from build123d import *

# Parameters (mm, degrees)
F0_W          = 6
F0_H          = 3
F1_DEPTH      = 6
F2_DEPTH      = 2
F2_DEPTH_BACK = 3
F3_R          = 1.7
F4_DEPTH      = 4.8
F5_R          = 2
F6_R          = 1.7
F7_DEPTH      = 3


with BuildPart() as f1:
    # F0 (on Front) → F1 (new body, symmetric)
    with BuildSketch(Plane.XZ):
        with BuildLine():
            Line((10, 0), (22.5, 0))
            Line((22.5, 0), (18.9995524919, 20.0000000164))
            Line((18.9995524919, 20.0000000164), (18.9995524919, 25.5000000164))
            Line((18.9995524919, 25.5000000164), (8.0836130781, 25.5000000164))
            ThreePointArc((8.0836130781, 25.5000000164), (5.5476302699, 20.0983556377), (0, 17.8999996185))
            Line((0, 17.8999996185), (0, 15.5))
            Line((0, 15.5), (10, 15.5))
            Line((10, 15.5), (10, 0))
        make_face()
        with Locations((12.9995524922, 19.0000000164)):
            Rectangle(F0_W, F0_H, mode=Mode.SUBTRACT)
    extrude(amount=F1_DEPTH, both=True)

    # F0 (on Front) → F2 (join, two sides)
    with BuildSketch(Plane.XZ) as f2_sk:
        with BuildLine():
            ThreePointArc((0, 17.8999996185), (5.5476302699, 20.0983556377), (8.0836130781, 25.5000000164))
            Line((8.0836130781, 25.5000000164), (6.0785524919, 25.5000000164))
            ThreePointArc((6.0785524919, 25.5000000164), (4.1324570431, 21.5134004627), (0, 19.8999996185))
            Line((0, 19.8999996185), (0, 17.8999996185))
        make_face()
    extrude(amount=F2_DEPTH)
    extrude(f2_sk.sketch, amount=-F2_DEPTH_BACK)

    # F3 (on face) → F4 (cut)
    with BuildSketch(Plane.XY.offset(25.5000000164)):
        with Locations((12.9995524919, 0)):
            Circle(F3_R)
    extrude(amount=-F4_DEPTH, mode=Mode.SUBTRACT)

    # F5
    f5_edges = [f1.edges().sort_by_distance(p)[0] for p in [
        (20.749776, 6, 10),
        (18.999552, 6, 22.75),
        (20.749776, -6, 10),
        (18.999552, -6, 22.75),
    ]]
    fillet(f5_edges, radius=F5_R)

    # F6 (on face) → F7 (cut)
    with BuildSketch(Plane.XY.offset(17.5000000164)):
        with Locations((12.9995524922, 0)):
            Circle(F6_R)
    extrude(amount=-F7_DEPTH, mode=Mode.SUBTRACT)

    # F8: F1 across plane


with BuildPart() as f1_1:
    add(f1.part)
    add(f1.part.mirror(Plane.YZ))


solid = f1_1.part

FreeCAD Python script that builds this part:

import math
import FreeCAD as App
import Part
import Sketcher
from FreeCAD import Vector
Q = App.Units.Quantity


def edges_at(feature, points):
    """Names of the edges that pass closest to the given points."""
    edges = feature.Shape.Edges
    near = lambda p: min(range(len(edges)), key=lambda i: edges[i].distToShape(Part.Vertex(*p))[0])
    return sorted({f"Edge{near(p) + 1}" for p in points})

doc = App.newDocument("Part")
body = doc.addObject("PartDesign::Body", "Body")

# Sketch on XZ plane
sketch1 = body.newObject("Sketcher::SketchObject", "Sketch")
sketch1.AttachmentSupport = (doc.getObject("XZ_Plane"), [""])
sketch1.MapMode = "FlatFace"
sketch1.addGeometry([
    Part.LineSegment(Vector(10, 0, 0), Vector(22.5, 0, 0)),  # 0
    Part.LineSegment(Vector(22.5, 0, 0), Vector(18.999552, 20, 0)),  # 1
    Part.LineSegment(Vector(18.999552, 20, 0), Vector(18.999552, 25.5, 0)),  # 2
    Part.LineSegment(Vector(18.999552, 25.5, 0), Vector(8.083613, 25.5, 0)),  # 3
    Part.ArcOfCircle(Part.Circle(Vector(0, 25.999, 0), Vector(0, 0, 1), 8.099), math.radians(-90), math.radians(-3.532373)),  # 4
    Part.LineSegment(Vector(0, 17.9, 0), Vector(0, 15.5, 0)),  # 5
    Part.LineSegment(Vector(0, 15.5, 0), Vector(10, 15.5, 0)),  # 6
    Part.LineSegment(Vector(10, 15.5, 0), Vector(10, 0, 0)),  # 7
    Part.LineSegment(Vector(15.999552, 17.5, 0), Vector(9.999552, 17.5, 0)),  # 8
    Part.LineSegment(Vector(9.999552, 17.5, 0), Vector(9.999552, 20.5, 0)),  # 9
    Part.LineSegment(Vector(9.999552, 20.5, 0), Vector(15.999552, 20.5, 0)),  # 10
    Part.LineSegment(Vector(15.999552, 20.5, 0), Vector(15.999552, 17.5, 0)),  # 11
], False)
sketch1.addConstraint([
    Sketcher.Constraint("Coincident", 0, 2, 1, 1),
    Sketcher.Constraint("Coincident", 1, 2, 2, 1),
    Sketcher.Constraint("Coincident", 2, 2, 3, 1),
    Sketcher.Constraint("Coincident", 3, 2, 4, 2),
    Sketcher.Constraint("Coincident", 4, 1, 5, 1),
    Sketcher.Constraint("Coincident", 5, 2, 6, 1),
    Sketcher.Constraint("Coincident", 6, 2, 7, 1),
    Sketcher.Constraint("Coincident", 7, 2, 0, 1),
    Sketcher.Constraint("Coincident", 8, 2, 9, 1),
    Sketcher.Constraint("Coincident", 9, 2, 10, 1),
    Sketcher.Constraint("Coincident", 10, 2, 11, 1),
    Sketcher.Constraint("Coincident", 11, 2, 8, 1),
    Sketcher.Constraint("Horizontal", 0),
    Sketcher.Constraint("Vertical", 2),
    Sketcher.Constraint("Horizontal", 3),
    Sketcher.Constraint("Vertical", 5),
    Sketcher.Constraint("Horizontal", 6),
    Sketcher.Constraint("Vertical", 7),
    Sketcher.Constraint("Horizontal", 8),
    Sketcher.Constraint("Vertical", 9),
    Sketcher.Constraint("Horizontal", 10),
    Sketcher.Constraint("Vertical", 11),
    Sketcher.Constraint("PointOnObject", 4, 3, -2),
    Sketcher.Constraint("PointOnObject", 0, 2, -1),
    Sketcher.Constraint("PointOnObject", 4, 1, -2),
    Sketcher.Constraint("DistanceX", 6, 1, 6, 2, Q("10 mm")),
    Sketcher.Constraint("DistanceX", 8, 2, 8, 1, Q("6 mm")),
    Sketcher.Constraint("DistanceY", 9, 1, 9, 2, Q("3 mm")),
    Sketcher.Constraint("DistanceX", 0, 1, 0, 2, Q("12.5 mm")),
    Sketcher.Constraint("DistanceY", 2, 1, 2, 2, Q("5.5 mm")),
    Sketcher.Constraint("DistanceY", 5, 2, 5, 1, Q("2.4 mm")),
    Sketcher.Constraint("DistanceY", 7, 2, 7, 1, Q("15.5 mm")),
    Sketcher.Constraint("DistanceY", -1, 1, 1, 2, Q("20 mm")),
    Sketcher.Constraint("Radius", 4, Q("8.099 mm")),
    Sketcher.Constraint("DistanceY", 6, 2, 8, 2, Q("2 mm")),
    Sketcher.Constraint("DistanceX", 8, 2, 1, 2, Q("9 mm")),
    Sketcher.Constraint("DistanceX", 3, 2, 3, 1, Q("10.915939 mm")),
])
pad1 = body.newObject("PartDesign::Pad", "Pad")
pad1.Profile = sketch1
pad1.Length = 12
pad1.Midplane = True

# Sketch on XZ plane
sketch2 = body.newObject("Sketcher::SketchObject", "Sketch001")
sketch2.AttachmentSupport = (doc.getObject("XZ_Plane"), [""])
sketch2.MapMode = "FlatFace"
sketch2.addGeometry([
    Part.ArcOfCircle(Part.Circle(Vector(0, 25.999, 0), Vector(0, 0, 1), 8.099), math.radians(-90), math.radians(-3.532373)),
    Part.LineSegment(Vector(8.083613, 25.5, 0), Vector(6.078552, 25.5, 0)),
    Part.ArcOfCircle(Part.Circle(Vector(0, 25.999, 0), Vector(0, 0, 1), 6.099), math.radians(-90), math.radians(-4.692993)),
    Part.LineSegment(Vector(0, 19.9, 0), Vector(0, 17.9, 0)),
], False)
sketch2.addConstraint([
    Sketcher.Constraint("Coincident", 0, 2, 1, 1),
    Sketcher.Constraint("Coincident", 1, 2, 2, 2),
    Sketcher.Constraint("Coincident", 2, 1, 3, 1),
    Sketcher.Constraint("Coincident", 3, 2, 0, 1),
    Sketcher.Constraint("Horizontal", 1),
    Sketcher.Constraint("Vertical", 3),
    Sketcher.Constraint("Coincident", 2, 3, 0, 3),
    Sketcher.Constraint("PointOnObject", 0, 3, -2),
    Sketcher.Constraint("PointOnObject", 2, 1, -2),
    Sketcher.Constraint("DistanceY", 3, 2, 3, 1, Q("2 mm")),
    Sketcher.Constraint("Radius", 0, Q("8.099 mm")),
    Sketcher.Constraint("DistanceY", -1, 1, 0, 2, Q("25.5 mm")),
    Sketcher.Constraint("DistanceY", -1, 1, 2, 1, Q("19.9 mm")),
])
pad2 = body.newObject("PartDesign::Pad", "Pad001")
pad2.Profile = sketch2
pad2.Type = "TwoLengths"
pad2.Length = 2
pad2.Length2 = 3

# Sketch on XY plane
sketch3 = body.newObject("Sketcher::SketchObject", "Sketch002")
sketch3.AttachmentSupport = (doc.getObject("XY_Plane"), [""])
sketch3.MapMode = "FlatFace"
sketch3.AttachmentOffset = App.Placement(Vector(0, 0, 25.5), App.Rotation())
sketch3.addGeometry(Part.Circle(Vector(12.999552, 0, 0), Vector(0, 0, 1), 1.7), False)
sketch3.addConstraint([
    Sketcher.Constraint("PointOnObject", 0, 3, -1),
    Sketcher.Constraint("Diameter", 0, Q("3.4 mm")),
    Sketcher.Constraint("DistanceX", -1, 1, 0, 3, Q("12.999552 mm")),
])
pocket1 = body.newObject("PartDesign::Pocket", "Pocket")
pocket1.Profile = sketch3
pocket1.Length = 4.8
doc.recompute()

fillet = body.newObject("PartDesign::Fillet", "Fillet")
fillet.Base = (pocket1, edges_at(pocket1, [
    (20.75, 6, 10),
    (19, 6, 22.75),
    (20.75, -6, 10),
    (19, -6, 22.75),
]))
fillet.Radius = 2

# Sketch on XY plane
sketch4 = body.newObject("Sketcher::SketchObject", "Sketch003")
sketch4.AttachmentSupport = (doc.getObject("XY_Plane"), [""])
sketch4.MapMode = "FlatFace"
sketch4.AttachmentOffset = App.Placement(Vector(0, 0, 17.5), App.Rotation())
sketch4.addGeometry(Part.Circle(Vector(12.999552, 0, 0), Vector(0, 0, 1), 1.7), False)
sketch4.addConstraint([
    Sketcher.Constraint("PointOnObject", 0, 3, -1),
    Sketcher.Constraint("Diameter", 0, Q("3.4 mm")),
    Sketcher.Constraint("DistanceX", -1, 1, 0, 3, Q("12.999552 mm")),
])
pocket2 = body.newObject("PartDesign::Pocket", "Pocket001")
pocket2.Profile = sketch4
pocket2.Length = 3
body2 = doc.addObject("PartDesign::Body", "Body001")
doc.recompute()

body2.BaseFeature = body
doc.recompute()

mirroring = doc.addObject("Part::Mirroring", "Mirroring")
mirroring.Source = body
mirroring.Base = Vector(0, 0, 0)
mirroring.Normal = Vector(1, 0, 0)
body3 = doc.addObject("PartDesign::Body", "Body002")
body3.BaseFeature = mirroring
boolean = body2.newObject("PartDesign::Boolean", "Boolean")
boolean.Type = "Fuse"
boolean.addObjects([body3])
doc.recompute()
mirroring.Visibility = False

doc.recompute()
